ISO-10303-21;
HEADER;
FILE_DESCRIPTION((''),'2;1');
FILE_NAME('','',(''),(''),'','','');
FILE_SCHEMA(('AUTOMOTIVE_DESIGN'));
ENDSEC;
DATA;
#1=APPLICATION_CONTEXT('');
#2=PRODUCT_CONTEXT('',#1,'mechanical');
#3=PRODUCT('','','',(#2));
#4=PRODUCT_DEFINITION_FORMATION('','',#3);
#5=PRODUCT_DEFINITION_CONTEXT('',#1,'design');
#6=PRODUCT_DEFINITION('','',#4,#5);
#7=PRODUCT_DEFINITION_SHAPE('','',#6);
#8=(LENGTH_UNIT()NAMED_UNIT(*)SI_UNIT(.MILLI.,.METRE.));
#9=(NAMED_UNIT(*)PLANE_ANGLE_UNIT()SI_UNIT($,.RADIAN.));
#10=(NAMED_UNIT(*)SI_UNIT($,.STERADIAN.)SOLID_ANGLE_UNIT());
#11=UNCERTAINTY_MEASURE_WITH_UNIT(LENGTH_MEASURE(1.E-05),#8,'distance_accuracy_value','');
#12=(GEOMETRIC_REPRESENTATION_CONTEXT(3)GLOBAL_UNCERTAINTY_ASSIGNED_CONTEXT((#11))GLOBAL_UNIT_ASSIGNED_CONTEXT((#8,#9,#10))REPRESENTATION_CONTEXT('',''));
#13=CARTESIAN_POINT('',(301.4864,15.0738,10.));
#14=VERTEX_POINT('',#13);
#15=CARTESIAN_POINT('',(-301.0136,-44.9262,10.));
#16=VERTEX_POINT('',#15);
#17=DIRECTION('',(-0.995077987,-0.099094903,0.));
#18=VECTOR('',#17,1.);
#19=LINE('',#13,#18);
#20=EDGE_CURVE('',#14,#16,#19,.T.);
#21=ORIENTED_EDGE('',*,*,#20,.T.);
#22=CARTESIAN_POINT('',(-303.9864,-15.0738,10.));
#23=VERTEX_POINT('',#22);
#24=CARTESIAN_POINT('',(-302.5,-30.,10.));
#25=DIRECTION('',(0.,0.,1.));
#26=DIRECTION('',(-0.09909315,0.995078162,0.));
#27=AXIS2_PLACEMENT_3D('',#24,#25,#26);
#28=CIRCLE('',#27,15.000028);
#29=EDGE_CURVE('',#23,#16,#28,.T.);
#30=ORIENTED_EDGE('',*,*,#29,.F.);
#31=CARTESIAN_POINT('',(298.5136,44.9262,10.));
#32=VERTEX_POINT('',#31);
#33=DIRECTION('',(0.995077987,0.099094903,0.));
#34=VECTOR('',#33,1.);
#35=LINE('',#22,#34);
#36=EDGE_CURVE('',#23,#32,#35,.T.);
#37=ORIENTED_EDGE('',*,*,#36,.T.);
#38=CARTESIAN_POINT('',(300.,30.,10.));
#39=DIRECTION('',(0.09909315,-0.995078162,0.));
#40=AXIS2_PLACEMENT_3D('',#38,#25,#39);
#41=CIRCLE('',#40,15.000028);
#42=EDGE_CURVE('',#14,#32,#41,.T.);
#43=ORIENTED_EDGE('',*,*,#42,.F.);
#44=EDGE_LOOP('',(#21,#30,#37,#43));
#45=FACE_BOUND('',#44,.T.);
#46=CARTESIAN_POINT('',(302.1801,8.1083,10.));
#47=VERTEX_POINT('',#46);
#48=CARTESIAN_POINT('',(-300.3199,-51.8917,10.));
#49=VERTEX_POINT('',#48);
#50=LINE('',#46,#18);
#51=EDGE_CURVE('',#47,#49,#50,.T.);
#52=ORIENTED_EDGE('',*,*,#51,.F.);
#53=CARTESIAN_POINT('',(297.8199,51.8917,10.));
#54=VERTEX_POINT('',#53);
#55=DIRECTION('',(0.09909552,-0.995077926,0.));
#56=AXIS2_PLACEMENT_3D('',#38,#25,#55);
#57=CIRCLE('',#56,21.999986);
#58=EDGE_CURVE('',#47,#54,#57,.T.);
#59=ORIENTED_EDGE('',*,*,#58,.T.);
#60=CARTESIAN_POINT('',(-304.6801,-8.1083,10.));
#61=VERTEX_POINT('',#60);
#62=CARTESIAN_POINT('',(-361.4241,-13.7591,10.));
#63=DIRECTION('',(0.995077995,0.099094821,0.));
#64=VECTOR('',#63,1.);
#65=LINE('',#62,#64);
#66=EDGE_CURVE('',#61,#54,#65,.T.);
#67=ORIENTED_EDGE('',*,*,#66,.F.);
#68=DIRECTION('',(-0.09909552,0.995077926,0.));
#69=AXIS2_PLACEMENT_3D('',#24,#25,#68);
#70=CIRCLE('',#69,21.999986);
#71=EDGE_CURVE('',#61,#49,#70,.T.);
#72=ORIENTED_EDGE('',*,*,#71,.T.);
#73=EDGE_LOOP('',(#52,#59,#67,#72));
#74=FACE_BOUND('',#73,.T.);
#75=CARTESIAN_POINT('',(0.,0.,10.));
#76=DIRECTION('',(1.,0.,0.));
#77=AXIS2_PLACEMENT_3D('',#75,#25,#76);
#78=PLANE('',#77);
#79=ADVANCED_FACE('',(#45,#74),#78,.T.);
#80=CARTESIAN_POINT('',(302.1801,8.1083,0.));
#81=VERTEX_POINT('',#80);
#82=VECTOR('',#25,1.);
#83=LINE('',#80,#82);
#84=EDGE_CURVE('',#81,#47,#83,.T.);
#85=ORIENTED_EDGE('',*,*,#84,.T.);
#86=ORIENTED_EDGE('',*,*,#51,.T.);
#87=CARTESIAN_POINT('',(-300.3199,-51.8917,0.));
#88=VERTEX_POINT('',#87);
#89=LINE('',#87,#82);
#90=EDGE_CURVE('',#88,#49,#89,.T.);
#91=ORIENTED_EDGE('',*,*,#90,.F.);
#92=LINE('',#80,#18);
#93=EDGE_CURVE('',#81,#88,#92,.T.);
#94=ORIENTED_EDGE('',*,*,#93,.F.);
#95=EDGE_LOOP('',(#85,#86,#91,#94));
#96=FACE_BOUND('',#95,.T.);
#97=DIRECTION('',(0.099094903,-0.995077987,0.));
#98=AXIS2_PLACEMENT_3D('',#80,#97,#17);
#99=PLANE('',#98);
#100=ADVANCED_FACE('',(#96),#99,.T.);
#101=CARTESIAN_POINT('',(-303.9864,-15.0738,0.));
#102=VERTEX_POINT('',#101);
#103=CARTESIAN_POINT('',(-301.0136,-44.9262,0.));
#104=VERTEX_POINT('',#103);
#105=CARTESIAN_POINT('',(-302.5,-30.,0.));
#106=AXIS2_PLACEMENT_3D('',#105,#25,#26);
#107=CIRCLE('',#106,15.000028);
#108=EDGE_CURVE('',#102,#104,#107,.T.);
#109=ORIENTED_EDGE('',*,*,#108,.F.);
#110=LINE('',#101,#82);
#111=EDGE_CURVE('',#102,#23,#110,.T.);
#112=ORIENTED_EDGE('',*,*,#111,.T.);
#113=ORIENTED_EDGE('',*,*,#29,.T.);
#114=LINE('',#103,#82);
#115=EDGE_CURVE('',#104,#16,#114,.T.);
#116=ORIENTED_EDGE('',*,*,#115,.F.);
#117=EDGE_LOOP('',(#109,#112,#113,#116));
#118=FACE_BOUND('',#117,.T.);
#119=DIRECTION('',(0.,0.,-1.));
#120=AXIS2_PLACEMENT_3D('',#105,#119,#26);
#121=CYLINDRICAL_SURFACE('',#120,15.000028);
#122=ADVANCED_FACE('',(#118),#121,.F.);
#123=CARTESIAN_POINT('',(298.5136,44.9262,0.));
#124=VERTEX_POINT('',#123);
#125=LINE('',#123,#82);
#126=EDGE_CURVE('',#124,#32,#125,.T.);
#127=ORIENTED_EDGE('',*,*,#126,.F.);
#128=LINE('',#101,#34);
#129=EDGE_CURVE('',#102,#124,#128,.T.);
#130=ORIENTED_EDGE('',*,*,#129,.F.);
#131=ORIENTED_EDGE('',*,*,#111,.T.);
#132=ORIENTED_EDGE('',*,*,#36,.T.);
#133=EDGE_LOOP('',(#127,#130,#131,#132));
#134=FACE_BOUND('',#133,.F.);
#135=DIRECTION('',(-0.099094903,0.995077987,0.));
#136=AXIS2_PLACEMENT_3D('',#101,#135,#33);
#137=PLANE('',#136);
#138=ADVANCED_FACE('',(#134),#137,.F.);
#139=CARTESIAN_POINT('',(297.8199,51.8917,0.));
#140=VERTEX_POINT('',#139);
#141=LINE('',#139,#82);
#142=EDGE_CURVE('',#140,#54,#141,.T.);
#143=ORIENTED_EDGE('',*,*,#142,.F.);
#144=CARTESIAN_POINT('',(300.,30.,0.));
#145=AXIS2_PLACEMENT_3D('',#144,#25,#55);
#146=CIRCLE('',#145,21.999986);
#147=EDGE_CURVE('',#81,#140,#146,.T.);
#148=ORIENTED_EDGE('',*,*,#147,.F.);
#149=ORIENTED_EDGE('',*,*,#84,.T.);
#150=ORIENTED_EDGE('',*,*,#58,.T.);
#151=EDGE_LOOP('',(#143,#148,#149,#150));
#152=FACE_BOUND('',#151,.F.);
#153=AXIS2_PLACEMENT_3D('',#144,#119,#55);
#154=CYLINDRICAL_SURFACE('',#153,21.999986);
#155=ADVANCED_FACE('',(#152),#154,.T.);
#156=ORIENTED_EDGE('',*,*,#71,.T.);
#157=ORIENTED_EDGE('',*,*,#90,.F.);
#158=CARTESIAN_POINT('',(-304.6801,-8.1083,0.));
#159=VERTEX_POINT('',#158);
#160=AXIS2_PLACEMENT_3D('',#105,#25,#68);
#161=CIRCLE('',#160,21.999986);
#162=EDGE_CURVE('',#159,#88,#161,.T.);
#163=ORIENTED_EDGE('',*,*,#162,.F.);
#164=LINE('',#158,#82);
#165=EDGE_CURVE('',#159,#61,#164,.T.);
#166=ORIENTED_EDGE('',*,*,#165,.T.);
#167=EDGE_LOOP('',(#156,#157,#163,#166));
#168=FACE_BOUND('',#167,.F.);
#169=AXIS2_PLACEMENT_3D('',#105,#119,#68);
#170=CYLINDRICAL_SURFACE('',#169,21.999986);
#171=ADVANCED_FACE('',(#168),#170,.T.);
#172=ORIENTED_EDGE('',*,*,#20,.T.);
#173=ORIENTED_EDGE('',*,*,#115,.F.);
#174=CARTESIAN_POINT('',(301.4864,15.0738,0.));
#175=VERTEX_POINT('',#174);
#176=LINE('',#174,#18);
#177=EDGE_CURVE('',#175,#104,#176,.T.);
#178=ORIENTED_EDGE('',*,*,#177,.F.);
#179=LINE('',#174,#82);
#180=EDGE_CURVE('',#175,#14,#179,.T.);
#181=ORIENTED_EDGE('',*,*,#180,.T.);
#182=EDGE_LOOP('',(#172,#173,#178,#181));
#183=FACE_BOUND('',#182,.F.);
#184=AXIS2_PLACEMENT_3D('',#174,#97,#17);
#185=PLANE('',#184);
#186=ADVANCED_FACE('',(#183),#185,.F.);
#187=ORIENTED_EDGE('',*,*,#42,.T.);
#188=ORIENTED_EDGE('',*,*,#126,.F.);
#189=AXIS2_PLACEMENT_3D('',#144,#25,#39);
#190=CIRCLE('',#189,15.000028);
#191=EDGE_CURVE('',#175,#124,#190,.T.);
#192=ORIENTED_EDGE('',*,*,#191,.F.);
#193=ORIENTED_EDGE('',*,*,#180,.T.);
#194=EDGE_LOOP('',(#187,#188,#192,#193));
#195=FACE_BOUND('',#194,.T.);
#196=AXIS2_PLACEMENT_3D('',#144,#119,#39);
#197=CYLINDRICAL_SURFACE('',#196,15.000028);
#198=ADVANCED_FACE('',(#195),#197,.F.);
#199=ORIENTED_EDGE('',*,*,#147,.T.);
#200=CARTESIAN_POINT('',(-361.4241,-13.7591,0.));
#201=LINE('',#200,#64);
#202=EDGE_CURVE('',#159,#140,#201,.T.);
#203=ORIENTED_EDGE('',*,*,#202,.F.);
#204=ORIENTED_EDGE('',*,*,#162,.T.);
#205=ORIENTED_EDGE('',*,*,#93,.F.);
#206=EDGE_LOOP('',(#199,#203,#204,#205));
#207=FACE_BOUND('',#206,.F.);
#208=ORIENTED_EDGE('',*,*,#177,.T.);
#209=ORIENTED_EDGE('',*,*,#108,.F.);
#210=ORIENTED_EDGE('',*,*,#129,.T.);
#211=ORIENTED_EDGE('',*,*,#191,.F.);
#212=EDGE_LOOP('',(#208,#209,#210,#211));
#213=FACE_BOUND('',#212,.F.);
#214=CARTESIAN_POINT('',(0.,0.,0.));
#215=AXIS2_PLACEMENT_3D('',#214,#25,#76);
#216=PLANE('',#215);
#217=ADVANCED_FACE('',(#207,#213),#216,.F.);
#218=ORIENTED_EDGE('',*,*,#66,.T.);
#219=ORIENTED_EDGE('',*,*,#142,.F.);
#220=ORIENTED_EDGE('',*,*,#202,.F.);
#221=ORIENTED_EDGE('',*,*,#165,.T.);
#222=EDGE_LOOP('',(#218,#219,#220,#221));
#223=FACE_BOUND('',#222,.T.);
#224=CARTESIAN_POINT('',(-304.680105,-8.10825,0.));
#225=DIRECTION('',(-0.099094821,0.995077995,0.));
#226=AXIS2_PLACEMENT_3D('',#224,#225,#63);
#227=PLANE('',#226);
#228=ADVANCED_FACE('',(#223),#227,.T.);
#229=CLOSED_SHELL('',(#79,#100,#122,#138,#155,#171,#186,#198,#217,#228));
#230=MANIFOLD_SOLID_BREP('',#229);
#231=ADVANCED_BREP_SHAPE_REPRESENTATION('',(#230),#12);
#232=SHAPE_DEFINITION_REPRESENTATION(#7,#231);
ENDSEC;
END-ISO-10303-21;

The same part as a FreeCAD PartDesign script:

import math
import FreeCAD as App
import Part
import Sketcher

doc = App.newDocument("Part")
params = doc.addObject("Spreadsheet::Sheet", "Params")
for row, (alias, value) in enumerate([
    ("sketch1_radius", "15 mm"),
    ("sketch1_radius2", "22 mm"),
    ("pad1_length", "10 mm"),
], start=1):
    params.set(f"A{row}", alias)
    params.set(f"B{row}", "=" + value)
    params.setAlias(f"B{row}", alias)

body = doc.addObject("PartDesign::Body", "Body")

# Sketch on XY plane
sketch1 = body.newObject("Sketcher::SketchObject", "Sketch")
sketch1.AttachmentSupport = (doc.getObject("XY_Plane"), [""])
sketch1.MapMode = "FlatFace"
sketch1.addGeometry(Part.LineSegment(App.Vector(298, 52, 0), App.Vector(-305, -8, 0)), False)
sketch1.addGeometry(Part.ArcOfCircle(Part.Circle(App.Vector(-302, -30, 0), App.Vector(0, 0, 1), 22), math.radians(96), math.radians(276)), False)
sketch1.addGeometry(Part.LineSegment(App.Vector(-300, -52, 0), App.Vector(302, 8, 0)), False)
sketch1.addGeometry(Part.ArcOfCircle(Part.Circle(App.Vector(300, 30, 0), App.Vector(0, 0, 1), 22), math.radians(-84), math.radians(96)), False)
sketch1.addGeometry(Part.ArcOfCircle(Part.Circle(App.Vector(-302, -30, 0), App.Vector(0, 0, 1), 15), math.radians(96), math.radians(276)), False)
sketch1.addGeometry(Part.LineSegment(App.Vector(-304, -15, 0), App.Vector(299, 45, 0)), False)
sketch1.addGeometry(Part.ArcOfCircle(Part.Circle(App.Vector(300, 30, 0), App.Vector(0, 0, 1), 15), math.radians(-84), math.radians(96)), False)
sketch1.addGeometry(Part.LineSegment(App.Vector(301, 15, 0), App.Vector(-301, -45, 0)), False)
sketch1.addConstraint(Sketcher.Constraint("Tangent", 0, 2, 1, 1))
sketch1.addConstraint(Sketcher.Constraint("Tangent", 1, 2, 2, 1))
sketch1.addConstraint(Sketcher.Constraint("Tangent", 2, 2, 3, 1))
sketch1.addConstraint(Sketcher.Constraint("Tangent", 3, 2, 0, 1))
sketch1.addConstraint(Sketcher.Constraint("Tangent", 4, 1, 5, 1))
sketch1.addConstraint(Sketcher.Constraint("Tangent", 5, 2, 6, 2))
sketch1.addConstraint(Sketcher.Constraint("Tangent", 6, 1, 7, 1))
sketch1.addConstraint(Sketcher.Constraint("Tangent", 7, 2, 4, 2))
sketch1.addConstraint(Sketcher.Constraint("Coincident", 4, 3, 1, 3))
sketch1.addConstraint(Sketcher.Constraint("Coincident", 6, 3, 3, 3))
sketch1.addConstraint(Sketcher.Constraint("Equal", 1, 3))
sketch1.addConstraint(Sketcher.Constraint("Equal", 4, 6))
sketch1.addConstraint(Sketcher.Constraint("Radius", 4, 15.0))
sketch1.addConstraint(Sketcher.Constraint("DistanceY", 1, 3, -1, 1, 30.0))
sketch1.addConstraint(Sketcher.Constraint("DistanceX", -1, 1, 3, 3, 300.0))
sketch1.addConstraint(Sketcher.Constraint("DistanceY", -1, 1, 3, 3, 30.0))
sketch1.addConstraint(Sketcher.Constraint("Radius", 1, 22.0))
sketch1.addConstraint(Sketcher.Constraint("DistanceX", 1, 3, -1, 1, 302.5))
sketch1.setExpression("Constraints[12]", "Params.sketch1_radius")
sketch1.setExpression("Constraints[16]", "Params.sketch1_radius2")
pad1 = body.newObject("PartDesign::Pad", "Pad")
pad1.Profile = sketch1
pad1.setExpression("Length", "Params.pad1_length")

doc.recompute()
